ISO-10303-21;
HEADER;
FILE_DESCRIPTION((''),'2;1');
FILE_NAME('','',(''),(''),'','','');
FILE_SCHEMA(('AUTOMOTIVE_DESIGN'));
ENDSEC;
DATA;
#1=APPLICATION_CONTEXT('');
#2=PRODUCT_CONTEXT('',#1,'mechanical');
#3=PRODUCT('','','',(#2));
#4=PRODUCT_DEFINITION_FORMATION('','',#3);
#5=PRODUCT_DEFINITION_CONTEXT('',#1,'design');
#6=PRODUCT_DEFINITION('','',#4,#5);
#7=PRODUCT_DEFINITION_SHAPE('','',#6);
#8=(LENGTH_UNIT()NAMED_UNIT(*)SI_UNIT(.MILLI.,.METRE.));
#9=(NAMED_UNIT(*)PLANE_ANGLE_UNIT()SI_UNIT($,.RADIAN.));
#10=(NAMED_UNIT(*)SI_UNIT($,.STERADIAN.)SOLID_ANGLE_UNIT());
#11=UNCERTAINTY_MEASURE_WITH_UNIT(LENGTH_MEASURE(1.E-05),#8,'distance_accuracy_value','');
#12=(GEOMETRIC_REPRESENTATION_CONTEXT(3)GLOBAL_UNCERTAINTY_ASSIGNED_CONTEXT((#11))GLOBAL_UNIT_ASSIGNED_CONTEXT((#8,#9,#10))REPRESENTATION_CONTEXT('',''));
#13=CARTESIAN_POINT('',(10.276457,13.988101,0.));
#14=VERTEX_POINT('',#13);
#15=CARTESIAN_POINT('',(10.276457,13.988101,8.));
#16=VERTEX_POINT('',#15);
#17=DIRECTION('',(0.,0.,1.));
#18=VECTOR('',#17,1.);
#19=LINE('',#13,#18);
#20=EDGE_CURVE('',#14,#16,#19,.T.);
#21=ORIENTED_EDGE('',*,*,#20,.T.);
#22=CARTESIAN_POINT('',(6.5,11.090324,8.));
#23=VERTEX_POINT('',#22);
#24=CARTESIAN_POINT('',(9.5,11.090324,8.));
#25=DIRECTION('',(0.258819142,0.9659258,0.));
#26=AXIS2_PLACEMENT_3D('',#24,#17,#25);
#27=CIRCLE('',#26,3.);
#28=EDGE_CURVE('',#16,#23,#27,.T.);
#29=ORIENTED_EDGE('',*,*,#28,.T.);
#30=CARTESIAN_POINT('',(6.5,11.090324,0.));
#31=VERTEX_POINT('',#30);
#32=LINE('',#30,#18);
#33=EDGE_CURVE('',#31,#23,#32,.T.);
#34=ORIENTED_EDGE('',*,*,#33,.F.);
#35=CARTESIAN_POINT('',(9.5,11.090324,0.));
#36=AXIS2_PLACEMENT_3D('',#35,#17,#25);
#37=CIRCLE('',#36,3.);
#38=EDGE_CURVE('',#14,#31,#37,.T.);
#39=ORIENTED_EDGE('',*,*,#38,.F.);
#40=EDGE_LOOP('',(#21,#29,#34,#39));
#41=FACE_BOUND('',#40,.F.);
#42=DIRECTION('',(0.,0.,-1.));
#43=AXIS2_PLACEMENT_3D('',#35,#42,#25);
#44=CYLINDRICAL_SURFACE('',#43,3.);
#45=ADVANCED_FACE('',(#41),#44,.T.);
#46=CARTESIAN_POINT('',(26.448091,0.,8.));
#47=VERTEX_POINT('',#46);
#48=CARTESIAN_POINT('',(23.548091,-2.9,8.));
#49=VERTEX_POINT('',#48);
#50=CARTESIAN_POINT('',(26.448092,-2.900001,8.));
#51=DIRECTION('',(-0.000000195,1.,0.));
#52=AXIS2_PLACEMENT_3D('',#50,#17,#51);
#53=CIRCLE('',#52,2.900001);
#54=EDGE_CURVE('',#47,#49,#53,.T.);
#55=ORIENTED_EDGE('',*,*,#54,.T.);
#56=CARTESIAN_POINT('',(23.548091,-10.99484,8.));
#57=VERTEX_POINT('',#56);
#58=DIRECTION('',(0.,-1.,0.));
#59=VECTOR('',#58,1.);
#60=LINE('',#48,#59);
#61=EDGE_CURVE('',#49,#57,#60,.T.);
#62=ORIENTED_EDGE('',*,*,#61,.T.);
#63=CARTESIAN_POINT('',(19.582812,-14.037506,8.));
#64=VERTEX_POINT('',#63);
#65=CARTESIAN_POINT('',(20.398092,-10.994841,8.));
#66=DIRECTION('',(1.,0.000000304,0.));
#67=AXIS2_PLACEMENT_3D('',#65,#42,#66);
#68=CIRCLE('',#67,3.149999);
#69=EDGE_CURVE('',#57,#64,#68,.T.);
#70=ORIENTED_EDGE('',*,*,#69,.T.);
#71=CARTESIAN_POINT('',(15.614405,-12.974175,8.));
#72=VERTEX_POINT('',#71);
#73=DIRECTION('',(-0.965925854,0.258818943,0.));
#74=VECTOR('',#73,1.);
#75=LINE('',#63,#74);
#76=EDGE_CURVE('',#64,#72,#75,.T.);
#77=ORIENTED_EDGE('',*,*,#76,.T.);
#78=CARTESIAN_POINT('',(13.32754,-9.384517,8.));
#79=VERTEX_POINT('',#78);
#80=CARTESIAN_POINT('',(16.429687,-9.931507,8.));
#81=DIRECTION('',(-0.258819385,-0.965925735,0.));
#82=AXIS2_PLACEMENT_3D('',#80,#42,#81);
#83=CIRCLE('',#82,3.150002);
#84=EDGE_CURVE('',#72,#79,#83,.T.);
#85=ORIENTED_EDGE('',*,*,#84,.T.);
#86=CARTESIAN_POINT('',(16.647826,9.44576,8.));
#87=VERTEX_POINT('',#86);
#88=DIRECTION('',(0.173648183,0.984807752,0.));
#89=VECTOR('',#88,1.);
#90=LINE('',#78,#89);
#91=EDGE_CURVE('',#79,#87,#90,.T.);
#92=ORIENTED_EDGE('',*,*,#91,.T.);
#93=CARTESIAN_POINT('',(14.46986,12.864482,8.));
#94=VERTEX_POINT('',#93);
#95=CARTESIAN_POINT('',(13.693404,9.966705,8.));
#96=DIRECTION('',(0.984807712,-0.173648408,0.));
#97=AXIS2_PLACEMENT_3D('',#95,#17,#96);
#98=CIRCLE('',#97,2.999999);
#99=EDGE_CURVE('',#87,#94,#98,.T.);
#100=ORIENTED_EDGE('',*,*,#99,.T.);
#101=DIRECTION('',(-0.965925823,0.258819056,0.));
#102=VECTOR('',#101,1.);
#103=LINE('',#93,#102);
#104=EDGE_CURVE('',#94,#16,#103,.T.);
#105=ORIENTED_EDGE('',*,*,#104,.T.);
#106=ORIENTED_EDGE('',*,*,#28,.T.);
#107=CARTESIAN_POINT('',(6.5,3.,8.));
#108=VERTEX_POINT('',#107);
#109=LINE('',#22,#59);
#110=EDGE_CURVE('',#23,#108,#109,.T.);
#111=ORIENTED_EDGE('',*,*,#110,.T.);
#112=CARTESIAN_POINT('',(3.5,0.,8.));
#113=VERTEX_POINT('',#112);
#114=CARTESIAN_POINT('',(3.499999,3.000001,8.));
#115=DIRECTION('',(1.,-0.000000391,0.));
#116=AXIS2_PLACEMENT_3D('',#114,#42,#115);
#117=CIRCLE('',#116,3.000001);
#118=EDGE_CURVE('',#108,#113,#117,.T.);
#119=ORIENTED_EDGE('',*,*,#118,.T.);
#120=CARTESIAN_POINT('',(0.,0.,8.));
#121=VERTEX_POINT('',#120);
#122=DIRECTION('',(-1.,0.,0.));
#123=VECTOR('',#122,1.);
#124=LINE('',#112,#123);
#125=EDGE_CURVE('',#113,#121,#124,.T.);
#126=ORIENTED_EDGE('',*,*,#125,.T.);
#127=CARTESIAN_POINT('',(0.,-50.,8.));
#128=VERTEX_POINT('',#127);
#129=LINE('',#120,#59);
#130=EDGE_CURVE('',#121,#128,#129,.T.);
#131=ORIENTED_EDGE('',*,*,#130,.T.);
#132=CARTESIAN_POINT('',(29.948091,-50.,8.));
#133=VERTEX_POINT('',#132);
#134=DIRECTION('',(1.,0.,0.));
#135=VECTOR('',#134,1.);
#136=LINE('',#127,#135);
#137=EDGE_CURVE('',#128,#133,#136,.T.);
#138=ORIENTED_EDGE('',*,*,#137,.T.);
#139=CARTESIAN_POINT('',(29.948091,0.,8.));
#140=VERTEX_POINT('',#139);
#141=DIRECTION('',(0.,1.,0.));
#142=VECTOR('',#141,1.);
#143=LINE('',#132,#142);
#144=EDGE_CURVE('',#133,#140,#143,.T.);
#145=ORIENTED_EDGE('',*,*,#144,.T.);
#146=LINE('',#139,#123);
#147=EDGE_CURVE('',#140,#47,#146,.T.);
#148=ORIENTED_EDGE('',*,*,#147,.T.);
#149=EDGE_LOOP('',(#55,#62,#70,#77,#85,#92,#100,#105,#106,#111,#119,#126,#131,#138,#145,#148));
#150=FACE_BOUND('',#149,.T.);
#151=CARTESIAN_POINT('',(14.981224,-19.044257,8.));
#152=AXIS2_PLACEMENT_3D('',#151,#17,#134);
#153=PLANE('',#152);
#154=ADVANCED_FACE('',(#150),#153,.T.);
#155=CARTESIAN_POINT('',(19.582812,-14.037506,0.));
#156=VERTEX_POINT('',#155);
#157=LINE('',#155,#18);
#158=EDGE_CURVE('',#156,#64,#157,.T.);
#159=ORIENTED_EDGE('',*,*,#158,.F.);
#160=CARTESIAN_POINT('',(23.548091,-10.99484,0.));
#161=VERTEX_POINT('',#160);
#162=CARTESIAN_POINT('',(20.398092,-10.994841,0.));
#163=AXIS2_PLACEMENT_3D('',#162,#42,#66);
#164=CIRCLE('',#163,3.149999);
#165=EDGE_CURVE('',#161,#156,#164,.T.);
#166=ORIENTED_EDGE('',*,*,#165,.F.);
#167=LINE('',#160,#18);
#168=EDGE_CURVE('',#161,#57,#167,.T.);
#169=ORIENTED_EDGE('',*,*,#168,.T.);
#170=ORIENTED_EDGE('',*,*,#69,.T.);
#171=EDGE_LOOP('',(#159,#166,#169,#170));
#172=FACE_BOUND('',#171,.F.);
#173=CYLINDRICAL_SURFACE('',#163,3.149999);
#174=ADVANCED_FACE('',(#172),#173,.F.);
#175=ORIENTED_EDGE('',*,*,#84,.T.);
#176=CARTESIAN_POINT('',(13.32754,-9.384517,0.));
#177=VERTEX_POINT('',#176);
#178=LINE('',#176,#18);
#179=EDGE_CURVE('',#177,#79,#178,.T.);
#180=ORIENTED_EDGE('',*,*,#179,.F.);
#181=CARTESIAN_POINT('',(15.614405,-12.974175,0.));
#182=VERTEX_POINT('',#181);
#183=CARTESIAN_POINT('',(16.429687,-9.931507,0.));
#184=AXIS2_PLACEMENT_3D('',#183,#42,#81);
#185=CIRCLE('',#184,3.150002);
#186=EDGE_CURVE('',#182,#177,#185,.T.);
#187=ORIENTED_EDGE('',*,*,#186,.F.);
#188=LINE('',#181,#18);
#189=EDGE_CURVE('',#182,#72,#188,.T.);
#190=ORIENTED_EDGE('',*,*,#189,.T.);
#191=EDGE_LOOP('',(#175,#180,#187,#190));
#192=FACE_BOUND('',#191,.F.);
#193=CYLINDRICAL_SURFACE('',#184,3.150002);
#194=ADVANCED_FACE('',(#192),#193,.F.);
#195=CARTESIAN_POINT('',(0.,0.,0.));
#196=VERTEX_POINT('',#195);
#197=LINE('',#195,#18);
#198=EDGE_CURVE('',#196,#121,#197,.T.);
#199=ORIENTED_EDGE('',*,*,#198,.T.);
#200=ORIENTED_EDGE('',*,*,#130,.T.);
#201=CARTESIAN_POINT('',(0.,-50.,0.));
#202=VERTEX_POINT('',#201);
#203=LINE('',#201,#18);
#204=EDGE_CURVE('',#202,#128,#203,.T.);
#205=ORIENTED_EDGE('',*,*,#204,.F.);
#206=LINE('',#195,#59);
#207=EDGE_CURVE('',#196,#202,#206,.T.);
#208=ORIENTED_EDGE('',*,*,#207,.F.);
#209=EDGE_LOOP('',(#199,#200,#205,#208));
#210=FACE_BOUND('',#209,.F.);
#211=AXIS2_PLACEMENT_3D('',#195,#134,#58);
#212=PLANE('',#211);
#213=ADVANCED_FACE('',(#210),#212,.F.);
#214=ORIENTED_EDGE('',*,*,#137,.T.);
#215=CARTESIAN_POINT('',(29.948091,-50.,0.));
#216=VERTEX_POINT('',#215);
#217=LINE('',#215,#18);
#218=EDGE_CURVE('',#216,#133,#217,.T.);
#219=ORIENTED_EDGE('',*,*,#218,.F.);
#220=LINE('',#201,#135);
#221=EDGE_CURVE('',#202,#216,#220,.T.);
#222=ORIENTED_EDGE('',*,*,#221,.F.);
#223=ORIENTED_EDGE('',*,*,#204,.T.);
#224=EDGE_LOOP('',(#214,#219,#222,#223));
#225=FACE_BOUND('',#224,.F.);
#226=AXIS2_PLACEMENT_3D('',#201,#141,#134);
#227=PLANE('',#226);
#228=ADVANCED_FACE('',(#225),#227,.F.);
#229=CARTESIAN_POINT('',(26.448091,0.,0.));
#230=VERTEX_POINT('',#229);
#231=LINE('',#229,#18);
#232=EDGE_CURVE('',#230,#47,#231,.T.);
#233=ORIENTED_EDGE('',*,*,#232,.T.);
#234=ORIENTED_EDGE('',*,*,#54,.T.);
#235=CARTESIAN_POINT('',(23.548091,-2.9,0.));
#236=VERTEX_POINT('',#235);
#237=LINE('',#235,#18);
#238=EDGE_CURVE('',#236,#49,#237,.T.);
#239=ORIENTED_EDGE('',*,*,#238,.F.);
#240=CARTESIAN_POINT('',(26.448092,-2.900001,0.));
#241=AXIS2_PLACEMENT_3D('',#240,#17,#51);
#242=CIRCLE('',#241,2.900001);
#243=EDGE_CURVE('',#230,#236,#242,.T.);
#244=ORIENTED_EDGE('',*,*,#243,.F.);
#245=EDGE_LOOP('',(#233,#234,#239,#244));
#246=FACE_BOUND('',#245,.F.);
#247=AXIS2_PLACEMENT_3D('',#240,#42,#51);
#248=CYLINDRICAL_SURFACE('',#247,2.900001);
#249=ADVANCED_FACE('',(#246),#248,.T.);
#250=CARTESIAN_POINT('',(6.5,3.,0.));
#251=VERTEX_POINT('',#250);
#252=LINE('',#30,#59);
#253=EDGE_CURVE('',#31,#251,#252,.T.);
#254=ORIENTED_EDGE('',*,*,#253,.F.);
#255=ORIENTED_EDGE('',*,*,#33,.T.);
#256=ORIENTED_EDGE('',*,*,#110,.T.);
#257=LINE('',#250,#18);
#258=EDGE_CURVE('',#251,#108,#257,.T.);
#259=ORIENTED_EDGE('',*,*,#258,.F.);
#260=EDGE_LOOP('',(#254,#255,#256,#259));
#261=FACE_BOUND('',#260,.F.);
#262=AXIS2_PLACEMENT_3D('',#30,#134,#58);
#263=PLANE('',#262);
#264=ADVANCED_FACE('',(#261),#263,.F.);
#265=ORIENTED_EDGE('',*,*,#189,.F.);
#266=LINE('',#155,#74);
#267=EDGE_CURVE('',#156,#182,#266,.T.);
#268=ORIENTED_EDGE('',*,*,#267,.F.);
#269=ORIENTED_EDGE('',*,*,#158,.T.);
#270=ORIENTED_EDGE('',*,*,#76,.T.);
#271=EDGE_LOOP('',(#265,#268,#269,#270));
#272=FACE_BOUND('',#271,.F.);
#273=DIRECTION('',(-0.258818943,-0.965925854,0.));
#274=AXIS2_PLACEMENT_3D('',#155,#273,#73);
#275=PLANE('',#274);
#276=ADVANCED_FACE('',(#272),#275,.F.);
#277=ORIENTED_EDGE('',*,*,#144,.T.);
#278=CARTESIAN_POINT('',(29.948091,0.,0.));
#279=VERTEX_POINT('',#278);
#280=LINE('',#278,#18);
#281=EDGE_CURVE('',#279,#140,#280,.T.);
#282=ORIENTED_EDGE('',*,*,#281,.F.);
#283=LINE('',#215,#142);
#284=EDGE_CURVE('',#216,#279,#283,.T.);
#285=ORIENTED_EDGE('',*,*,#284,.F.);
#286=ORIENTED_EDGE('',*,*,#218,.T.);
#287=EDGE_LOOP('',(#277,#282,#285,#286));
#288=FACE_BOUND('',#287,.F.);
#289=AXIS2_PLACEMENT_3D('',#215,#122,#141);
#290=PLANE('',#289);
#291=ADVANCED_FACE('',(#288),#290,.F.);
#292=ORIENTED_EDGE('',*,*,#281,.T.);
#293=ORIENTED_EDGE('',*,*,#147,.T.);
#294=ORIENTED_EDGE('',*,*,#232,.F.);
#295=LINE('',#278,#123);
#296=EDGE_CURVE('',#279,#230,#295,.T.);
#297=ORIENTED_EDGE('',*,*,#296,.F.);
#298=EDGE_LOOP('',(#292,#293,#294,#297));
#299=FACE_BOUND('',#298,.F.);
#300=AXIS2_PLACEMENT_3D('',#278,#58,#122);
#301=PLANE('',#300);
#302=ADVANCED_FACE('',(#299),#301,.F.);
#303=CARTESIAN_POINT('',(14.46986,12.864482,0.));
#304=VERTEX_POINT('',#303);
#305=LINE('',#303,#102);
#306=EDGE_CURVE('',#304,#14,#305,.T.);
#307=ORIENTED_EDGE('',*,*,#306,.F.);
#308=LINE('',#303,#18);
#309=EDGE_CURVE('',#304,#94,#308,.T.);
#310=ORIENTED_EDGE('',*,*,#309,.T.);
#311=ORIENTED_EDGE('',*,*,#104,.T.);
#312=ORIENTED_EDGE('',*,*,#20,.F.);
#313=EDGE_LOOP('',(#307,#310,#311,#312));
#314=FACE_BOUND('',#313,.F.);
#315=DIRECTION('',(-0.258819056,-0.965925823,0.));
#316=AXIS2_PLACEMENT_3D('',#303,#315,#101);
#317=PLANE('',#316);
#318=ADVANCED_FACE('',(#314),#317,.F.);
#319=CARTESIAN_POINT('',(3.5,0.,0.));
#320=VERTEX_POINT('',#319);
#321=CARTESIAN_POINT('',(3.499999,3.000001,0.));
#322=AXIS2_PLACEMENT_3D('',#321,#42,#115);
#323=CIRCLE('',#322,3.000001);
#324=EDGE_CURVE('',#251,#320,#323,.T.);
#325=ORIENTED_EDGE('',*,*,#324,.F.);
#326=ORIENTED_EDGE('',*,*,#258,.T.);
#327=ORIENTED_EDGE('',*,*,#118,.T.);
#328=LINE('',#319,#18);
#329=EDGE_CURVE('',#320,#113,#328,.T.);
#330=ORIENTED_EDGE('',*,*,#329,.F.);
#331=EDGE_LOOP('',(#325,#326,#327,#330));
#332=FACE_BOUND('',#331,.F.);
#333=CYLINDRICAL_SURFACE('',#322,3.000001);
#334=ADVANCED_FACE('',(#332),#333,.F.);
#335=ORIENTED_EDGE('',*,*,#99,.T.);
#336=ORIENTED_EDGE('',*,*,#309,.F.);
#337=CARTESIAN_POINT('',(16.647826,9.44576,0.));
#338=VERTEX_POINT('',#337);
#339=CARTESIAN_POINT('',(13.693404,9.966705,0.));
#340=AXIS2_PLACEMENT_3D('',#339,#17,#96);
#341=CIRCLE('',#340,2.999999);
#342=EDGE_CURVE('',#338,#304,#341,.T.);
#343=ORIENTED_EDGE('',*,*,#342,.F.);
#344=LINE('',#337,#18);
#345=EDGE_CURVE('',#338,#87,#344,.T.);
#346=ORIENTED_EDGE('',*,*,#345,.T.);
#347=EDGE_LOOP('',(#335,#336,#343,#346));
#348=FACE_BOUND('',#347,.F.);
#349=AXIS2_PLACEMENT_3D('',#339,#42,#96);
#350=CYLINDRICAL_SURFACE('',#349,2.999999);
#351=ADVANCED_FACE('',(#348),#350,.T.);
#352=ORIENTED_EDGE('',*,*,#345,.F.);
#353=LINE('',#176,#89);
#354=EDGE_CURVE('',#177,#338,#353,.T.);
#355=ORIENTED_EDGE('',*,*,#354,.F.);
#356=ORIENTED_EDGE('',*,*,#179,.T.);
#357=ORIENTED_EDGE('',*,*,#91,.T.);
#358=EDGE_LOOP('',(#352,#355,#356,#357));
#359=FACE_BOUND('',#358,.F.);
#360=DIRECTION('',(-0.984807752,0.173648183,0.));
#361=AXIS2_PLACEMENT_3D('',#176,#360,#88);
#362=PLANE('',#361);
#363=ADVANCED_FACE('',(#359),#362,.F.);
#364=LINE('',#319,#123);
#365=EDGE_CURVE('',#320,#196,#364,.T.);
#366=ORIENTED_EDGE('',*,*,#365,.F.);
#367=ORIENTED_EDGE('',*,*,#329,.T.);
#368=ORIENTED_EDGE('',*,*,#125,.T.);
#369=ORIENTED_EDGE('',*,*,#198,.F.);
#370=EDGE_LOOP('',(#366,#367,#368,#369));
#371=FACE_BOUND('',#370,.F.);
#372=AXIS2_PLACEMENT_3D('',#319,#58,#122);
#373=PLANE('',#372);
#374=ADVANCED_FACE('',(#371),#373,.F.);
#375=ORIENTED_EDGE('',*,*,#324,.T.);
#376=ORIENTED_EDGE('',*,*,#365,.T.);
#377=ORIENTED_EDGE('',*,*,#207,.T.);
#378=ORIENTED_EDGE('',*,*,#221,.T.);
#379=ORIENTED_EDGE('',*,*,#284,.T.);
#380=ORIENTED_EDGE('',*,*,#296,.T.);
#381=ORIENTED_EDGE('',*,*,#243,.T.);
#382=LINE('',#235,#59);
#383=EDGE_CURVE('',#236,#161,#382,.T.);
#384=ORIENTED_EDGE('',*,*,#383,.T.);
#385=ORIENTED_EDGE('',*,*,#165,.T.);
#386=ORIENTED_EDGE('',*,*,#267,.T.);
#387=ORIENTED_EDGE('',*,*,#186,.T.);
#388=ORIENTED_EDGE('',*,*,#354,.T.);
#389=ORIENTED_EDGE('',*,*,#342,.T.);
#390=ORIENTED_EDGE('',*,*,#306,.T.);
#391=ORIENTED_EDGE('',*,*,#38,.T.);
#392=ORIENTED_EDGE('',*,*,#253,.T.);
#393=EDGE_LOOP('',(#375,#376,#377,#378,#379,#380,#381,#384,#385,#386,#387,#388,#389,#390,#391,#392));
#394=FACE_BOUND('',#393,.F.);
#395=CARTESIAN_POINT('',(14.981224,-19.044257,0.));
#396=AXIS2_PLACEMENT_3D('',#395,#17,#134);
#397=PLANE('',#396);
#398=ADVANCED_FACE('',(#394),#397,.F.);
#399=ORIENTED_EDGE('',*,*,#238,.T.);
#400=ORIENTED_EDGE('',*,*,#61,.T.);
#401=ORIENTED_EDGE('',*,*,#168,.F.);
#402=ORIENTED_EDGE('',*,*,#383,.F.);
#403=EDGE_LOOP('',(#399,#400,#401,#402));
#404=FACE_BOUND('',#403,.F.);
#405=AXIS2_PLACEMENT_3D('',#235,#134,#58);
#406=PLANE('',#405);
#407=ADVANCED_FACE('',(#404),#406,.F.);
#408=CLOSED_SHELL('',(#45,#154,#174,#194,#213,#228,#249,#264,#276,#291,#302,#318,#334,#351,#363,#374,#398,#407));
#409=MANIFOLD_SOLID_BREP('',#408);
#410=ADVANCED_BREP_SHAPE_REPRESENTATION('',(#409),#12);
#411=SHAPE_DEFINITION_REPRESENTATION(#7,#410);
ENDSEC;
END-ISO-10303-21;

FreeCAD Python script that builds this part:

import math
import FreeCAD as App
import Part
import Sketcher
Q = App.Units.Quantity

doc = App.newDocument("Part")
body = doc.addObject("PartDesign::Body", "Body")

sketch1 = doc.addObject("Sketcher::SketchObject", "Sketch")
body.addObject(sketch1)
sketch1.AttachmentSupport = (doc.XY_Plane, [""])
sketch1.MapMode = "FlatFace"
sketch1.addGeometry(Part.LineSegment(App.Vector(3.5, 0, 0), App.Vector(0, 0, 0)), False)
sketch1.addGeometry(Part.LineSegment(App.Vector(0, 0, 0), App.Vector(0, -50, 0)), False)
sketch1.addGeometry(Part.LineSegment(App.Vector(0, -50, 0), App.Vector(29.948091, -50, 0)), False)
sketch1.addGeometry(Part.LineSegment(App.Vector(29.948091, -50, 0), App.Vector(29.948091, 0, 0)), False)
sketch1.addGeometry(Part.LineSegment(App.Vector(29.948091, 0, 0), App.Vector(26.448091, 0, 0)), False)
sketch1.addGeometry(Part.ArcOfCircle(Part.Circle(App.Vector(26.448092, -2.900001, 0), App.Vector(0, 0, 1), 2.900001), math.radians(90.000011), math.radians(179.999989)), False)
sketch1.addGeometry(Part.LineSegment(App.Vector(23.548091, -2.9, 0), App.Vector(23.548091, -10.99484, 0)), False)
sketch1.addGeometry(Part.ArcOfCircle(Part.Circle(App.Vector(20.398092, -10.994841, 0), App.Vector(0, 0, 1), 3.149999), math.radians(-105.00001), math.radians(0.000017)), False)
sketch1.addGeometry(Part.LineSegment(App.Vector(19.582812, -14.037506, 0), App.Vector(15.614405, -12.974175, 0)), False)
sketch1.addGeometry(Part.ArcOfCircle(Part.Circle(App.Vector(16.429687, -9.931507, 0), App.Vector(0, 0, 1), 3.150002), math.radians(170.000035), math.radians(254.99998)), False)
sketch1.addGeometry(Part.LineSegment(App.Vector(13.32754, -9.384517, 0), App.Vector(16.647826, 9.44576, 0)), False)
sketch1.addGeometry(Part.ArcOfCircle(Part.Circle(App.Vector(13.693404, 9.966705, 0), App.Vector(0, 0, 1), 2.999999), math.radians(-10.000013), math.radians(75.000011)), False)
sketch1.addGeometry(Part.LineSegment(App.Vector(14.46986, 12.864482, 0), App.Vector(10.276457, 13.988101, 0)), False)
sketch1.addGeometry(Part.ArcOfCircle(Part.Circle(App.Vector(9.5, 11.090324, 0), App.Vector(0, 0, 1), 3), math.radians(74.999994), math.radians(179.999999)), False)
sketch1.addGeometry(Part.LineSegment(App.Vector(6.5, 11.090324, 0), App.Vector(6.5, 3, 0)), False)
sketch1.addGeometry(Part.ArcOfCircle(Part.Circle(App.Vector(3.499999, 3.000001, 0), App.Vector(0, 0, 1), 3.000001), math.radians(-89.999978), math.radians(-0.000022)), False)
sketch1.addConstraint(Sketcher.Constraint("Coincident", 0, 2, 1, 1))
sketch1.addConstraint(Sketcher.Constraint("Coincident", 1, 2, 2, 1))
sketch1.addConstraint(Sketcher.Constraint("Coincident", 2, 2, 3, 1))
sketch1.addConstraint(Sketcher.Constraint("Coincident", 3, 2, 4, 1))
sketch1.addConstraint(Sketcher.Constraint("Tangent", 4, 2, 5, 1))
sketch1.addConstraint(Sketcher.Constraint("Tangent", 5, 2, 6, 1))
sketch1.addConstraint(Sketcher.Constraint("Tangent", 6, 2, 7, 2))
sketch1.addConstraint(Sketcher.Constraint("Tangent", 7, 1, 8, 1))
sketch1.addConstraint(Sketcher.Constraint("Tangent", 8, 2, 9, 2))
sketch1.addConstraint(Sketcher.Constraint("Tangent", 9, 1, 10, 1))
sketch1.addConstraint(Sketcher.Constraint("Tangent", 10, 2, 11, 1))
sketch1.addConstraint(Sketcher.Constraint("Tangent", 11, 2, 12, 1))
sketch1.addConstraint(Sketcher.Constraint("Tangent", 12, 2, 13, 1))
sketch1.addConstraint(Sketcher.Constraint("Tangent", 13, 2, 14, 1))
sketch1.addConstraint(Sketcher.Constraint("Tangent", 14, 2, 15, 2))
sketch1.addConstraint(Sketcher.Constraint("Tangent", 15, 1, 0, 1))
sketch1.addConstraint(Sketcher.Constraint("Horizontal", 0))
sketch1.addConstraint(Sketcher.Constraint("Vertical", 1))
sketch1.addConstraint(Sketcher.Constraint("Horizontal", 2))
sketch1.addConstraint(Sketcher.Constraint("Vertical", 3))
sketch1.addConstraint(Sketcher.Constraint("Horizontal", 4))
sketch1.addConstraint(Sketcher.Constraint("Vertical", 6))
sketch1.addConstraint(Sketcher.Constraint("Vertical", 14))
sketch1.addConstraint(Sketcher.Constraint("Coincident", 0, 2, -1, 1))
sketch1.addConstraint(Sketcher.Constraint("Equal", 11, 13))
sketch1.addConstraint(Sketcher.Constraint("Equal", 13, 15))
sketch1.addConstraint(Sketcher.Constraint("PointOnObject", 3, 2, -1))
sketch1.addConstraint(Sketcher.Constraint("Parallel", 8, 12))
sketch1.addConstraint(Sketcher.Constraint("Equal", 0, 4))
sketch1.addConstraint(Sketcher.Constraint("Radius", 11, Q("2.999999 mm")))
sketch1.addConstraint(Sketcher.Constraint("Radius", 5, Q("2.900001 mm")))
sketch1.addConstraint(Sketcher.Constraint("DistanceY", 1, 2, 1, 1, Q("50 mm")))
sketch1.addConstraint(Sketcher.Constraint("Angle", 8, Q("165.000006 deg")))
sketch1.addConstraint(Sketcher.Constraint("Angle", 10, Q("80 deg")))
sketch1.addConstraint(Sketcher.Constraint("Radius", 7, Q("3.149999 mm")))
sketch1.addConstraint(Sketcher.Constraint("Radius", 9, Q("3.150002 mm")))
sketch1.addConstraint(Sketcher.Constraint("DistanceX", 0, 2, 0, 1, Q("3.5 mm")))
sketch1.addConstraint(Sketcher.Constraint("DistanceY", 7, 1, 9, 3, Q("4.105999 mm")))
sketch1.addConstraint(Sketcher.Constraint("DistanceX", 2, 1, 2, 2, Q("29.948091 mm")))
sketch1.addConstraint(Sketcher.Constraint("DistanceY", 6, 2, 6, 1, Q("8.09484 mm")))
sketch1.addConstraint(Sketcher.Constraint("DistanceY", -1, 1, 12, 2, Q("13.988101 mm")))
pad1 = doc.addObject("PartDesign::Pad", "Pad")
body.addObject(pad1)
pad1.Profile = sketch1
pad1.Length = 8

doc.recompute()
